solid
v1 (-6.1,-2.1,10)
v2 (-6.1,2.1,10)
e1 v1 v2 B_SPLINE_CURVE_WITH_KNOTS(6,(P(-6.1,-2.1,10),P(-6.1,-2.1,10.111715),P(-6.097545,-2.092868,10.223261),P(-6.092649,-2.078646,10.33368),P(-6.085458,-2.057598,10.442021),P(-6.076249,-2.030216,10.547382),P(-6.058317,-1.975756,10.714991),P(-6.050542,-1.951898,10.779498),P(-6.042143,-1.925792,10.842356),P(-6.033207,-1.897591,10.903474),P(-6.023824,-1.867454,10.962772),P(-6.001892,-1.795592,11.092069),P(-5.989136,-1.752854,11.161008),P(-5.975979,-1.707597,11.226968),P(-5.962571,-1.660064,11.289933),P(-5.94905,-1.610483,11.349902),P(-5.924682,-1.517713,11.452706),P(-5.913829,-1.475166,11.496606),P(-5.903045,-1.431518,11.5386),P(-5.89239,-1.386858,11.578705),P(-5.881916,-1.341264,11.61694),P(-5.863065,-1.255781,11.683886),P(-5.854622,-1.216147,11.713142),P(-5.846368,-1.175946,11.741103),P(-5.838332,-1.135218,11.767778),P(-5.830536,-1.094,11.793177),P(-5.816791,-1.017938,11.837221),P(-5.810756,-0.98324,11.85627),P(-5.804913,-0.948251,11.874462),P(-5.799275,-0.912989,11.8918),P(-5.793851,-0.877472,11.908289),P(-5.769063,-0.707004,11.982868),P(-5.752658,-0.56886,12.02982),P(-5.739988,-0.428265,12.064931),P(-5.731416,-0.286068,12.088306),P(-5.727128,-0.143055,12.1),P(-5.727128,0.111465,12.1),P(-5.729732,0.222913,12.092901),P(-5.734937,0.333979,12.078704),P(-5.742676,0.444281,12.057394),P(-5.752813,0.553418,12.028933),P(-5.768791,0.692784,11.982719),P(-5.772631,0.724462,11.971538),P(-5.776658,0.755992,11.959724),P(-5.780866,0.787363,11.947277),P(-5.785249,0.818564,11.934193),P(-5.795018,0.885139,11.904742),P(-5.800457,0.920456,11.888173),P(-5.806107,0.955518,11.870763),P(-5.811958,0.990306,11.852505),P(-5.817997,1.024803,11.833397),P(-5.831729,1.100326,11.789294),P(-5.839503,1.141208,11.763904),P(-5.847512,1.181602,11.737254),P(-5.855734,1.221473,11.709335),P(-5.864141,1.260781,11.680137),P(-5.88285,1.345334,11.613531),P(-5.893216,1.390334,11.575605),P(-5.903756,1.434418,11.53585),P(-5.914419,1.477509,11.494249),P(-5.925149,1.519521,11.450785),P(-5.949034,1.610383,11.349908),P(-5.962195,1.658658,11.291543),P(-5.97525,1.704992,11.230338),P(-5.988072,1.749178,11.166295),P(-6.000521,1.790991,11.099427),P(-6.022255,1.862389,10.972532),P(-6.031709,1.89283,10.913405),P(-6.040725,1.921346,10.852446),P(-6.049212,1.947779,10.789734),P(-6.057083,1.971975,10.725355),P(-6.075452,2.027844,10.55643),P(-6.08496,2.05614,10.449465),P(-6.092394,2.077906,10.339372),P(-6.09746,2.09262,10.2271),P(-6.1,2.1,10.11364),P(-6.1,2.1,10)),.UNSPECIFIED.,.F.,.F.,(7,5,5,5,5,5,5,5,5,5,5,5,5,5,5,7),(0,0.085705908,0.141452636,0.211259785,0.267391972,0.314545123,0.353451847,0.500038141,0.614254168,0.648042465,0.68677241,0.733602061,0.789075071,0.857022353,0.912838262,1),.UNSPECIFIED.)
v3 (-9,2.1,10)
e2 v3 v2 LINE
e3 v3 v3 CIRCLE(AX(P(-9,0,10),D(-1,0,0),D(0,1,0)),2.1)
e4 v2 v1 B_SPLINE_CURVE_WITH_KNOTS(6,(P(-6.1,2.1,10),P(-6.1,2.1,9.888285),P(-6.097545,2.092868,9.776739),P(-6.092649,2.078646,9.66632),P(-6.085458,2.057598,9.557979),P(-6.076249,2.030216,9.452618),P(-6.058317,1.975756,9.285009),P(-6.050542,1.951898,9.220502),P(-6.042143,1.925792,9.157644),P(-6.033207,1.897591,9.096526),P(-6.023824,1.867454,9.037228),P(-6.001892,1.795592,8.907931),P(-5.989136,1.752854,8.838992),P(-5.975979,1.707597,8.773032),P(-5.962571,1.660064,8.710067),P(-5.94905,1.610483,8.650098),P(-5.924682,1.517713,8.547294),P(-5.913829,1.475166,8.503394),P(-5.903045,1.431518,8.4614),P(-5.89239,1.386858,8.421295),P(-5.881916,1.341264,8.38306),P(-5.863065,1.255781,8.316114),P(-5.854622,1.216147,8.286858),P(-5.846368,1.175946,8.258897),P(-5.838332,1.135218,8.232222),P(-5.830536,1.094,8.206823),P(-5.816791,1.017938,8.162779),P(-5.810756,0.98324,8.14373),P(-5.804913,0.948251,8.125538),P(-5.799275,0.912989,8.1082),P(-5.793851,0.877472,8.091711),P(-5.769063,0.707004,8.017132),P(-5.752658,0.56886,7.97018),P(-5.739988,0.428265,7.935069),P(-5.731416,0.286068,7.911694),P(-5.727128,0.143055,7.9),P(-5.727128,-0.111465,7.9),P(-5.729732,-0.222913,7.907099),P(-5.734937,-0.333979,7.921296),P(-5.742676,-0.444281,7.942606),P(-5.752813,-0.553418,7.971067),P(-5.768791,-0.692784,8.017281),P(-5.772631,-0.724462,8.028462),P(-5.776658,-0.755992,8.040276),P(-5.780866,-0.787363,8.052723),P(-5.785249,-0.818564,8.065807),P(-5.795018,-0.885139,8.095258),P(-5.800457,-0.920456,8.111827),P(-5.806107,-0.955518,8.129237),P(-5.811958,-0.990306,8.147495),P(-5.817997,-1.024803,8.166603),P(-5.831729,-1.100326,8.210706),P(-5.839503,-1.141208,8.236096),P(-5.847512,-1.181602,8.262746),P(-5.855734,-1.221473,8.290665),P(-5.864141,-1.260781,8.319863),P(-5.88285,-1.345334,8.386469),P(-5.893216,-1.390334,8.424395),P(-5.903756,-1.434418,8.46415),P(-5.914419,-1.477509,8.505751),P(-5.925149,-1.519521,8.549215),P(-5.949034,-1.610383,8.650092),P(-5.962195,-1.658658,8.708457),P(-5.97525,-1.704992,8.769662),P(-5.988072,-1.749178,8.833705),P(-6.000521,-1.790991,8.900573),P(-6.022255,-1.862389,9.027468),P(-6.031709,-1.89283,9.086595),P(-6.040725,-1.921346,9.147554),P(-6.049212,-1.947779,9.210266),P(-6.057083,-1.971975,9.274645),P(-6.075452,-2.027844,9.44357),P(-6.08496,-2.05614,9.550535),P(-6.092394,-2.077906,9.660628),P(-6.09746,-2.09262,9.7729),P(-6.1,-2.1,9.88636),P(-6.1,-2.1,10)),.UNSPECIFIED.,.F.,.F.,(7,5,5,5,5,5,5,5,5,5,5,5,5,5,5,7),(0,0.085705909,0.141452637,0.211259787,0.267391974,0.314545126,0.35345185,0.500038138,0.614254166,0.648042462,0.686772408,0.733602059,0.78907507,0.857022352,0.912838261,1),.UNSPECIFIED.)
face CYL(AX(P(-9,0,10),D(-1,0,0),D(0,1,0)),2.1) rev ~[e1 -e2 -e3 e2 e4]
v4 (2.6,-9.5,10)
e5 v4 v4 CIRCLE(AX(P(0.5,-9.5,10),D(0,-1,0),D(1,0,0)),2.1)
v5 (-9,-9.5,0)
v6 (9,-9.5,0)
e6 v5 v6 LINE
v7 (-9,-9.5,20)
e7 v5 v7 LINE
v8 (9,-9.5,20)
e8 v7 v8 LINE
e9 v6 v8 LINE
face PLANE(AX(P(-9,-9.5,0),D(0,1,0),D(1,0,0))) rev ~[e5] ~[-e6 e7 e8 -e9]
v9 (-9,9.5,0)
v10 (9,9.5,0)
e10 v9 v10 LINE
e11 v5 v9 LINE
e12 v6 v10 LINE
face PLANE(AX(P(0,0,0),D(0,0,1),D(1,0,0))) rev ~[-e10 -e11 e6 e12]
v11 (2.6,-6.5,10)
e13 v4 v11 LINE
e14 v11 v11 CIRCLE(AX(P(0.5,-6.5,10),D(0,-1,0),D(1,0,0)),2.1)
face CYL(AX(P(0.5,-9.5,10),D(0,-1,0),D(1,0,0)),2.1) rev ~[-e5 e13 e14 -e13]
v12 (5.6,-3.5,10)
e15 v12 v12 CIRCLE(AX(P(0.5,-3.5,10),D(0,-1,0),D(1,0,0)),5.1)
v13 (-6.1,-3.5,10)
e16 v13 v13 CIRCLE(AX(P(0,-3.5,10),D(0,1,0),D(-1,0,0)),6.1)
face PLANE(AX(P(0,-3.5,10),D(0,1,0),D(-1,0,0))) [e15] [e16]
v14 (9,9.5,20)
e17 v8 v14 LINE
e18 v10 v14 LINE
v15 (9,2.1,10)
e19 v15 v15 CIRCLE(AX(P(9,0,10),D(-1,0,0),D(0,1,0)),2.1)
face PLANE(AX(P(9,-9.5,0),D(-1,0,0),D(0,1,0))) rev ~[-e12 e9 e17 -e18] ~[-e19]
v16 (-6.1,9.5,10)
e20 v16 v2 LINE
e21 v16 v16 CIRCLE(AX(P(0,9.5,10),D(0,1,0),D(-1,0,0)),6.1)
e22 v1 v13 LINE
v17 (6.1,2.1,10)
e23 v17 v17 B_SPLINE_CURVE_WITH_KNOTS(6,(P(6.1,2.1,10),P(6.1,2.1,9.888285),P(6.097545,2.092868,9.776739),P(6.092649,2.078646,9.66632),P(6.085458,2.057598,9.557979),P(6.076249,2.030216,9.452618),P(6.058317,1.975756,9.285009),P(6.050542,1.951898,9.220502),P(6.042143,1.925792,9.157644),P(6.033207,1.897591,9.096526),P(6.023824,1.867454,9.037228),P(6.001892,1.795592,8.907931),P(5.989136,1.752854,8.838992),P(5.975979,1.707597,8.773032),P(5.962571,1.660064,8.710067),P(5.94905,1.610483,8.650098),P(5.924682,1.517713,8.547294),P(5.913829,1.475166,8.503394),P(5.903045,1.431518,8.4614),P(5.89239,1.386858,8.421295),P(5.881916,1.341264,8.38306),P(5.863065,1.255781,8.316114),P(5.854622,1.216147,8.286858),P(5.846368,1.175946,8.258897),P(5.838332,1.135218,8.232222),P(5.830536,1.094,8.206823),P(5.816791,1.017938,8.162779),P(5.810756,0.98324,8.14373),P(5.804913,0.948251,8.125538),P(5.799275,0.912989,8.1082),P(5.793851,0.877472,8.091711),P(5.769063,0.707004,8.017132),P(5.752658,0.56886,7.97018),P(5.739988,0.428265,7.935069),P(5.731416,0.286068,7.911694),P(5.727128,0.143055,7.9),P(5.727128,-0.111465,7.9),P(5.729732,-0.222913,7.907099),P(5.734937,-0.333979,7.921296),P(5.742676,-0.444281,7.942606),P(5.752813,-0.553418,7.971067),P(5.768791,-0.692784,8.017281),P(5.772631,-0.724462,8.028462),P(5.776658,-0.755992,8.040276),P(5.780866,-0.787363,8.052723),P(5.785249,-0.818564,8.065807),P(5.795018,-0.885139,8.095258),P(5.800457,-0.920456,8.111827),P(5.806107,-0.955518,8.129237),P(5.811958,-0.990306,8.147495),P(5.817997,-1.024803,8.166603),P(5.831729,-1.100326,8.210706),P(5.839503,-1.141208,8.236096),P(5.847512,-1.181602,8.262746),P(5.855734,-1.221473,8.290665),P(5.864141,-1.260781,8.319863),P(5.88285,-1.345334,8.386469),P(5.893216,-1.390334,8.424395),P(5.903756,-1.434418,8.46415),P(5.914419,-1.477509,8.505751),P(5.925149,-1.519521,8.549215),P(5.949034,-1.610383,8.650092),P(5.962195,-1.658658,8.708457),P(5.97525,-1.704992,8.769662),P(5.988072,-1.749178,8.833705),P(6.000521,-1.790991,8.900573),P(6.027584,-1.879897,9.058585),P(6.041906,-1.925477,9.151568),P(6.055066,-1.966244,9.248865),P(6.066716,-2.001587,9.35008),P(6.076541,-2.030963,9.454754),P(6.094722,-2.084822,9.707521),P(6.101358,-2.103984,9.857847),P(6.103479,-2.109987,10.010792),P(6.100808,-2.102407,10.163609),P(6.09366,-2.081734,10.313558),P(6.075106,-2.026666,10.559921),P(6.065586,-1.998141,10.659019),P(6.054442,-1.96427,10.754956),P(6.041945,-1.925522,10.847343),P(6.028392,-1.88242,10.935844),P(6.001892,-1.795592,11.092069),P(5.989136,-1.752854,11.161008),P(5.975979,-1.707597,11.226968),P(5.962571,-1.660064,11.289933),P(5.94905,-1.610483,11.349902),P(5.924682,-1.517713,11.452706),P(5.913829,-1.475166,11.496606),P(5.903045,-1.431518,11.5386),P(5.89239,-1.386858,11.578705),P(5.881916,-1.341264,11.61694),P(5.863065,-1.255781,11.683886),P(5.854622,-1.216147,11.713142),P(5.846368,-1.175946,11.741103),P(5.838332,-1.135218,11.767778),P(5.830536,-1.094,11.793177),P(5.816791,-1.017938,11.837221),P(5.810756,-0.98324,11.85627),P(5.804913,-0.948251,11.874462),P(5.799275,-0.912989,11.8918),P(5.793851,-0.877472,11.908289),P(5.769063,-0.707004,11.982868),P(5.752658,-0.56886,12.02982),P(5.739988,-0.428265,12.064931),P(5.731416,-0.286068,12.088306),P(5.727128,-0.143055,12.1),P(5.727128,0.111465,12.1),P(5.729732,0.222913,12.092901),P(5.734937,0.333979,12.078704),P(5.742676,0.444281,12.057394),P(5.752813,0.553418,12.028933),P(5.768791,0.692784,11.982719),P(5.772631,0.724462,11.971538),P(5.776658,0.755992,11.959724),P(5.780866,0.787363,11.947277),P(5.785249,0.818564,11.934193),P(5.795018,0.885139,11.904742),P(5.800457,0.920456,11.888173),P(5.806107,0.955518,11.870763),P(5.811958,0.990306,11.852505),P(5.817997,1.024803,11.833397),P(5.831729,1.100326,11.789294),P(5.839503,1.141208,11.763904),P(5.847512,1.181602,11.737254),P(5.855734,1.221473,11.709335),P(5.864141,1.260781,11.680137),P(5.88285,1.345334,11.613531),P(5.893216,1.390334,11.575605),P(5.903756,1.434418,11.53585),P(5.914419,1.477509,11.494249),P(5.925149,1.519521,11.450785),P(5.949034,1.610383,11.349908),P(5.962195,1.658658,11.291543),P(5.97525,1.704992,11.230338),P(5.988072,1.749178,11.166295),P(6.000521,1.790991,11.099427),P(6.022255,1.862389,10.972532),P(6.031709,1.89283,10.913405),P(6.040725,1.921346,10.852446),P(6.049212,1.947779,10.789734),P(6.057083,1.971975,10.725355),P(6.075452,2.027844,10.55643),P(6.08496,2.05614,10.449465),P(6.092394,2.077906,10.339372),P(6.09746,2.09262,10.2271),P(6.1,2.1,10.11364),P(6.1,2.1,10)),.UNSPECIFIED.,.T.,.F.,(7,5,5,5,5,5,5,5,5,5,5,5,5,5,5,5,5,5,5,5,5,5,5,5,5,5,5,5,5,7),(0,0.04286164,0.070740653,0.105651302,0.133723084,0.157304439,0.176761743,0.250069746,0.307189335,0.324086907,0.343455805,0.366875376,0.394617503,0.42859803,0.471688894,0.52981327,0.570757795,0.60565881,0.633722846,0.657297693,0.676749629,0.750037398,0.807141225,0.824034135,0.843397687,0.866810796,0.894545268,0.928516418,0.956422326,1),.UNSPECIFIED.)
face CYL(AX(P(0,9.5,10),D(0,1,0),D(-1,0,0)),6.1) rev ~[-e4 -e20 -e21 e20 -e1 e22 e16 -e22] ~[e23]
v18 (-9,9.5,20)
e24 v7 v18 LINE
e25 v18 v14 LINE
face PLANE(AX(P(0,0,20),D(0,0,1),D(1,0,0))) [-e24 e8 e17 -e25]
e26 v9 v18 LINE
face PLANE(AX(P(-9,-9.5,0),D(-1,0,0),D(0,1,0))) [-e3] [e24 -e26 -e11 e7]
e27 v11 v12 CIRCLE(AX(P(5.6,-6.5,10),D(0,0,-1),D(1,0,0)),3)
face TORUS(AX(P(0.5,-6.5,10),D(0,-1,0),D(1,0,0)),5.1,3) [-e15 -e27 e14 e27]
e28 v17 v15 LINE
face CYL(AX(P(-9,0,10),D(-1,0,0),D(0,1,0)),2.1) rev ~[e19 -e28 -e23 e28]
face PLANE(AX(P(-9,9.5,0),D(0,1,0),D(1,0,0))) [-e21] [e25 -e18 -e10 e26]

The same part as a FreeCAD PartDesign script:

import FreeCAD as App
import Part
import Sketcher

V = App.Vector


def edges_at(feature, points):
    """Names of the edges that pass closest to the given points."""
    edges = feature.Shape.Edges
    near = lambda p: min(range(len(edges)), key=lambda i: edges[i].distToShape(Part.Vertex(*p))[0])
    return sorted({f"Edge{near(p) + 1}" for p in points})


def add_polygon(sketch, points):
    """Adds a closed chain of lines whose ends are joined by coincident constraints."""
    first, n = sketch.GeometryCount, len(points)
    for a, b in zip(points, points[1:] + points[:1]):
        sketch.addGeometry(Part.LineSegment(App.Vector(*a, 0), App.Vector(*b, 0)), False)
    for i in range(n):
        sketch.addConstraint(Sketcher.Constraint("Coincident", first + i, 2, first + (i + 1) % n, 1))

doc = App.newDocument("Part")
body = doc.addObject("PartDesign::Body", "Body")

sketch1 = body.newObject("Sketcher::SketchObject", "Sketch")
sketch1.AttachmentSupport = (doc.getObject("XY_Plane"), [""])
sketch1.MapMode = "FlatFace"
add_polygon(sketch1, [(-9, 10), (-9, -10), (9, -10), (9, 10)])
sketch1.addConstraint(Sketcher.Constraint("Vertical", 0))
sketch1.addConstraint(Sketcher.Constraint("Horizontal", 1))
sketch1.addConstraint(Sketcher.Constraint("Vertical", 2))
sketch1.addConstraint(Sketcher.Constraint("Horizontal", 3))
sketch1.addConstraint(Sketcher.Constraint("Symmetric", 0, 2, 2, 2, -1, 1))
sketch1.addConstraint(Sketcher.Constraint("DistanceX", 1, 1, 1, 2, 18.0))
sketch1.addConstraint(Sketcher.Constraint("DistanceY", 0, 2, 0, 1, 19.0))
pad1 = body.newObject("PartDesign::Pad", "Pad")
pad1.Profile = sketch1
pad1.Length = 20

sketch2 = body.newObject("Sketcher::SketchObject", "Sketch001")
sketch2.AttachmentSupport = (doc.getObject("XZ_Plane"), [""])
sketch2.MapMode = "FlatFace"
sketch2.AttachmentOffset = App.Placement(V(0, 0, -9.5), App.Rotation())
sketch2.addGeometry(Part.Circle(V(0, 10, 0), V(0, 0, 1), 6), False)
sketch2.addConstraint(Sketcher.Constraint("PointOnObject", 0, 3, -2))
sketch2.addConstraint(Sketcher.Constraint("Diameter", 0, 12.2))
sketch2.addConstraint(Sketcher.Constraint("DistanceY", -1, 1, 0, 3, 10.0))
pocket1 = body.newObject("PartDesign::Pocket", "Pocket")
pocket1.Profile = sketch2
pocket1.Length = 13
pocket1.Reversed = True

sketch3 = body.newObject("Sketcher::SketchObject", "Sketch002")
sketch3.AttachmentSupport = (doc.getObject("XZ_Plane"), [""])
sketch3.MapMode = "FlatFace"
sketch3.AttachmentOffset = App.Placement(V(0, 0, 9.5), App.Rotation())
sketch3.addGeometry(Part.Circle(V(0.5, 10, 0), V(0, 0, 1), 2.1), False)
sketch3.addConstraint(Sketcher.Constraint("Diameter", 0, 4.2))
sketch3.addConstraint(Sketcher.Constraint("DistanceY", -1, 1, 0, 3, 10.0))
sketch3.addConstraint(Sketcher.Constraint("DistanceX", -1, 1, 0, 3, 0.5))
pocket2 = body.newObject("PartDesign::Pocket", "Pocket001")
pocket2.Profile = sketch3
pocket2.Length = 18
doc.recompute()

fillet = body.newObject("PartDesign::Fillet", "Fillet")
fillet.Base = (pocket2, edges_at(pocket2, [(-1.6, -3.5, 10)]))
fillet.Radius = 3

sketch4 = body.newObject("Sketcher::SketchObject", "Sketch003")
sketch4.AttachmentSupport = (doc.getObject("YZ_Plane"), [""])
sketch4.MapMode = "FlatFace"
sketch4.AttachmentOffset = App.Placement(V(0, 0, -9), App.Rotation())
sketch4.addGeometry(Part.Circle(V(0, 10, 0), V(0, 0, 1), 2.1), False)
sketch4.addConstraint(Sketcher.Constraint("PointOnObject", 0, 3, -2))
sketch4.addConstraint(Sketcher.Constraint("Diameter", 0, 4.2))
sketch4.addConstraint(Sketcher.Constraint("DistanceY", -1, 1, 0, 3, 10.0))
pocket3 = body.newObject("PartDesign::Pocket", "Pocket002")
pocket3.Profile = sketch4
pocket3.Length = 25
pocket3.Reversed = True

doc.recompute()
